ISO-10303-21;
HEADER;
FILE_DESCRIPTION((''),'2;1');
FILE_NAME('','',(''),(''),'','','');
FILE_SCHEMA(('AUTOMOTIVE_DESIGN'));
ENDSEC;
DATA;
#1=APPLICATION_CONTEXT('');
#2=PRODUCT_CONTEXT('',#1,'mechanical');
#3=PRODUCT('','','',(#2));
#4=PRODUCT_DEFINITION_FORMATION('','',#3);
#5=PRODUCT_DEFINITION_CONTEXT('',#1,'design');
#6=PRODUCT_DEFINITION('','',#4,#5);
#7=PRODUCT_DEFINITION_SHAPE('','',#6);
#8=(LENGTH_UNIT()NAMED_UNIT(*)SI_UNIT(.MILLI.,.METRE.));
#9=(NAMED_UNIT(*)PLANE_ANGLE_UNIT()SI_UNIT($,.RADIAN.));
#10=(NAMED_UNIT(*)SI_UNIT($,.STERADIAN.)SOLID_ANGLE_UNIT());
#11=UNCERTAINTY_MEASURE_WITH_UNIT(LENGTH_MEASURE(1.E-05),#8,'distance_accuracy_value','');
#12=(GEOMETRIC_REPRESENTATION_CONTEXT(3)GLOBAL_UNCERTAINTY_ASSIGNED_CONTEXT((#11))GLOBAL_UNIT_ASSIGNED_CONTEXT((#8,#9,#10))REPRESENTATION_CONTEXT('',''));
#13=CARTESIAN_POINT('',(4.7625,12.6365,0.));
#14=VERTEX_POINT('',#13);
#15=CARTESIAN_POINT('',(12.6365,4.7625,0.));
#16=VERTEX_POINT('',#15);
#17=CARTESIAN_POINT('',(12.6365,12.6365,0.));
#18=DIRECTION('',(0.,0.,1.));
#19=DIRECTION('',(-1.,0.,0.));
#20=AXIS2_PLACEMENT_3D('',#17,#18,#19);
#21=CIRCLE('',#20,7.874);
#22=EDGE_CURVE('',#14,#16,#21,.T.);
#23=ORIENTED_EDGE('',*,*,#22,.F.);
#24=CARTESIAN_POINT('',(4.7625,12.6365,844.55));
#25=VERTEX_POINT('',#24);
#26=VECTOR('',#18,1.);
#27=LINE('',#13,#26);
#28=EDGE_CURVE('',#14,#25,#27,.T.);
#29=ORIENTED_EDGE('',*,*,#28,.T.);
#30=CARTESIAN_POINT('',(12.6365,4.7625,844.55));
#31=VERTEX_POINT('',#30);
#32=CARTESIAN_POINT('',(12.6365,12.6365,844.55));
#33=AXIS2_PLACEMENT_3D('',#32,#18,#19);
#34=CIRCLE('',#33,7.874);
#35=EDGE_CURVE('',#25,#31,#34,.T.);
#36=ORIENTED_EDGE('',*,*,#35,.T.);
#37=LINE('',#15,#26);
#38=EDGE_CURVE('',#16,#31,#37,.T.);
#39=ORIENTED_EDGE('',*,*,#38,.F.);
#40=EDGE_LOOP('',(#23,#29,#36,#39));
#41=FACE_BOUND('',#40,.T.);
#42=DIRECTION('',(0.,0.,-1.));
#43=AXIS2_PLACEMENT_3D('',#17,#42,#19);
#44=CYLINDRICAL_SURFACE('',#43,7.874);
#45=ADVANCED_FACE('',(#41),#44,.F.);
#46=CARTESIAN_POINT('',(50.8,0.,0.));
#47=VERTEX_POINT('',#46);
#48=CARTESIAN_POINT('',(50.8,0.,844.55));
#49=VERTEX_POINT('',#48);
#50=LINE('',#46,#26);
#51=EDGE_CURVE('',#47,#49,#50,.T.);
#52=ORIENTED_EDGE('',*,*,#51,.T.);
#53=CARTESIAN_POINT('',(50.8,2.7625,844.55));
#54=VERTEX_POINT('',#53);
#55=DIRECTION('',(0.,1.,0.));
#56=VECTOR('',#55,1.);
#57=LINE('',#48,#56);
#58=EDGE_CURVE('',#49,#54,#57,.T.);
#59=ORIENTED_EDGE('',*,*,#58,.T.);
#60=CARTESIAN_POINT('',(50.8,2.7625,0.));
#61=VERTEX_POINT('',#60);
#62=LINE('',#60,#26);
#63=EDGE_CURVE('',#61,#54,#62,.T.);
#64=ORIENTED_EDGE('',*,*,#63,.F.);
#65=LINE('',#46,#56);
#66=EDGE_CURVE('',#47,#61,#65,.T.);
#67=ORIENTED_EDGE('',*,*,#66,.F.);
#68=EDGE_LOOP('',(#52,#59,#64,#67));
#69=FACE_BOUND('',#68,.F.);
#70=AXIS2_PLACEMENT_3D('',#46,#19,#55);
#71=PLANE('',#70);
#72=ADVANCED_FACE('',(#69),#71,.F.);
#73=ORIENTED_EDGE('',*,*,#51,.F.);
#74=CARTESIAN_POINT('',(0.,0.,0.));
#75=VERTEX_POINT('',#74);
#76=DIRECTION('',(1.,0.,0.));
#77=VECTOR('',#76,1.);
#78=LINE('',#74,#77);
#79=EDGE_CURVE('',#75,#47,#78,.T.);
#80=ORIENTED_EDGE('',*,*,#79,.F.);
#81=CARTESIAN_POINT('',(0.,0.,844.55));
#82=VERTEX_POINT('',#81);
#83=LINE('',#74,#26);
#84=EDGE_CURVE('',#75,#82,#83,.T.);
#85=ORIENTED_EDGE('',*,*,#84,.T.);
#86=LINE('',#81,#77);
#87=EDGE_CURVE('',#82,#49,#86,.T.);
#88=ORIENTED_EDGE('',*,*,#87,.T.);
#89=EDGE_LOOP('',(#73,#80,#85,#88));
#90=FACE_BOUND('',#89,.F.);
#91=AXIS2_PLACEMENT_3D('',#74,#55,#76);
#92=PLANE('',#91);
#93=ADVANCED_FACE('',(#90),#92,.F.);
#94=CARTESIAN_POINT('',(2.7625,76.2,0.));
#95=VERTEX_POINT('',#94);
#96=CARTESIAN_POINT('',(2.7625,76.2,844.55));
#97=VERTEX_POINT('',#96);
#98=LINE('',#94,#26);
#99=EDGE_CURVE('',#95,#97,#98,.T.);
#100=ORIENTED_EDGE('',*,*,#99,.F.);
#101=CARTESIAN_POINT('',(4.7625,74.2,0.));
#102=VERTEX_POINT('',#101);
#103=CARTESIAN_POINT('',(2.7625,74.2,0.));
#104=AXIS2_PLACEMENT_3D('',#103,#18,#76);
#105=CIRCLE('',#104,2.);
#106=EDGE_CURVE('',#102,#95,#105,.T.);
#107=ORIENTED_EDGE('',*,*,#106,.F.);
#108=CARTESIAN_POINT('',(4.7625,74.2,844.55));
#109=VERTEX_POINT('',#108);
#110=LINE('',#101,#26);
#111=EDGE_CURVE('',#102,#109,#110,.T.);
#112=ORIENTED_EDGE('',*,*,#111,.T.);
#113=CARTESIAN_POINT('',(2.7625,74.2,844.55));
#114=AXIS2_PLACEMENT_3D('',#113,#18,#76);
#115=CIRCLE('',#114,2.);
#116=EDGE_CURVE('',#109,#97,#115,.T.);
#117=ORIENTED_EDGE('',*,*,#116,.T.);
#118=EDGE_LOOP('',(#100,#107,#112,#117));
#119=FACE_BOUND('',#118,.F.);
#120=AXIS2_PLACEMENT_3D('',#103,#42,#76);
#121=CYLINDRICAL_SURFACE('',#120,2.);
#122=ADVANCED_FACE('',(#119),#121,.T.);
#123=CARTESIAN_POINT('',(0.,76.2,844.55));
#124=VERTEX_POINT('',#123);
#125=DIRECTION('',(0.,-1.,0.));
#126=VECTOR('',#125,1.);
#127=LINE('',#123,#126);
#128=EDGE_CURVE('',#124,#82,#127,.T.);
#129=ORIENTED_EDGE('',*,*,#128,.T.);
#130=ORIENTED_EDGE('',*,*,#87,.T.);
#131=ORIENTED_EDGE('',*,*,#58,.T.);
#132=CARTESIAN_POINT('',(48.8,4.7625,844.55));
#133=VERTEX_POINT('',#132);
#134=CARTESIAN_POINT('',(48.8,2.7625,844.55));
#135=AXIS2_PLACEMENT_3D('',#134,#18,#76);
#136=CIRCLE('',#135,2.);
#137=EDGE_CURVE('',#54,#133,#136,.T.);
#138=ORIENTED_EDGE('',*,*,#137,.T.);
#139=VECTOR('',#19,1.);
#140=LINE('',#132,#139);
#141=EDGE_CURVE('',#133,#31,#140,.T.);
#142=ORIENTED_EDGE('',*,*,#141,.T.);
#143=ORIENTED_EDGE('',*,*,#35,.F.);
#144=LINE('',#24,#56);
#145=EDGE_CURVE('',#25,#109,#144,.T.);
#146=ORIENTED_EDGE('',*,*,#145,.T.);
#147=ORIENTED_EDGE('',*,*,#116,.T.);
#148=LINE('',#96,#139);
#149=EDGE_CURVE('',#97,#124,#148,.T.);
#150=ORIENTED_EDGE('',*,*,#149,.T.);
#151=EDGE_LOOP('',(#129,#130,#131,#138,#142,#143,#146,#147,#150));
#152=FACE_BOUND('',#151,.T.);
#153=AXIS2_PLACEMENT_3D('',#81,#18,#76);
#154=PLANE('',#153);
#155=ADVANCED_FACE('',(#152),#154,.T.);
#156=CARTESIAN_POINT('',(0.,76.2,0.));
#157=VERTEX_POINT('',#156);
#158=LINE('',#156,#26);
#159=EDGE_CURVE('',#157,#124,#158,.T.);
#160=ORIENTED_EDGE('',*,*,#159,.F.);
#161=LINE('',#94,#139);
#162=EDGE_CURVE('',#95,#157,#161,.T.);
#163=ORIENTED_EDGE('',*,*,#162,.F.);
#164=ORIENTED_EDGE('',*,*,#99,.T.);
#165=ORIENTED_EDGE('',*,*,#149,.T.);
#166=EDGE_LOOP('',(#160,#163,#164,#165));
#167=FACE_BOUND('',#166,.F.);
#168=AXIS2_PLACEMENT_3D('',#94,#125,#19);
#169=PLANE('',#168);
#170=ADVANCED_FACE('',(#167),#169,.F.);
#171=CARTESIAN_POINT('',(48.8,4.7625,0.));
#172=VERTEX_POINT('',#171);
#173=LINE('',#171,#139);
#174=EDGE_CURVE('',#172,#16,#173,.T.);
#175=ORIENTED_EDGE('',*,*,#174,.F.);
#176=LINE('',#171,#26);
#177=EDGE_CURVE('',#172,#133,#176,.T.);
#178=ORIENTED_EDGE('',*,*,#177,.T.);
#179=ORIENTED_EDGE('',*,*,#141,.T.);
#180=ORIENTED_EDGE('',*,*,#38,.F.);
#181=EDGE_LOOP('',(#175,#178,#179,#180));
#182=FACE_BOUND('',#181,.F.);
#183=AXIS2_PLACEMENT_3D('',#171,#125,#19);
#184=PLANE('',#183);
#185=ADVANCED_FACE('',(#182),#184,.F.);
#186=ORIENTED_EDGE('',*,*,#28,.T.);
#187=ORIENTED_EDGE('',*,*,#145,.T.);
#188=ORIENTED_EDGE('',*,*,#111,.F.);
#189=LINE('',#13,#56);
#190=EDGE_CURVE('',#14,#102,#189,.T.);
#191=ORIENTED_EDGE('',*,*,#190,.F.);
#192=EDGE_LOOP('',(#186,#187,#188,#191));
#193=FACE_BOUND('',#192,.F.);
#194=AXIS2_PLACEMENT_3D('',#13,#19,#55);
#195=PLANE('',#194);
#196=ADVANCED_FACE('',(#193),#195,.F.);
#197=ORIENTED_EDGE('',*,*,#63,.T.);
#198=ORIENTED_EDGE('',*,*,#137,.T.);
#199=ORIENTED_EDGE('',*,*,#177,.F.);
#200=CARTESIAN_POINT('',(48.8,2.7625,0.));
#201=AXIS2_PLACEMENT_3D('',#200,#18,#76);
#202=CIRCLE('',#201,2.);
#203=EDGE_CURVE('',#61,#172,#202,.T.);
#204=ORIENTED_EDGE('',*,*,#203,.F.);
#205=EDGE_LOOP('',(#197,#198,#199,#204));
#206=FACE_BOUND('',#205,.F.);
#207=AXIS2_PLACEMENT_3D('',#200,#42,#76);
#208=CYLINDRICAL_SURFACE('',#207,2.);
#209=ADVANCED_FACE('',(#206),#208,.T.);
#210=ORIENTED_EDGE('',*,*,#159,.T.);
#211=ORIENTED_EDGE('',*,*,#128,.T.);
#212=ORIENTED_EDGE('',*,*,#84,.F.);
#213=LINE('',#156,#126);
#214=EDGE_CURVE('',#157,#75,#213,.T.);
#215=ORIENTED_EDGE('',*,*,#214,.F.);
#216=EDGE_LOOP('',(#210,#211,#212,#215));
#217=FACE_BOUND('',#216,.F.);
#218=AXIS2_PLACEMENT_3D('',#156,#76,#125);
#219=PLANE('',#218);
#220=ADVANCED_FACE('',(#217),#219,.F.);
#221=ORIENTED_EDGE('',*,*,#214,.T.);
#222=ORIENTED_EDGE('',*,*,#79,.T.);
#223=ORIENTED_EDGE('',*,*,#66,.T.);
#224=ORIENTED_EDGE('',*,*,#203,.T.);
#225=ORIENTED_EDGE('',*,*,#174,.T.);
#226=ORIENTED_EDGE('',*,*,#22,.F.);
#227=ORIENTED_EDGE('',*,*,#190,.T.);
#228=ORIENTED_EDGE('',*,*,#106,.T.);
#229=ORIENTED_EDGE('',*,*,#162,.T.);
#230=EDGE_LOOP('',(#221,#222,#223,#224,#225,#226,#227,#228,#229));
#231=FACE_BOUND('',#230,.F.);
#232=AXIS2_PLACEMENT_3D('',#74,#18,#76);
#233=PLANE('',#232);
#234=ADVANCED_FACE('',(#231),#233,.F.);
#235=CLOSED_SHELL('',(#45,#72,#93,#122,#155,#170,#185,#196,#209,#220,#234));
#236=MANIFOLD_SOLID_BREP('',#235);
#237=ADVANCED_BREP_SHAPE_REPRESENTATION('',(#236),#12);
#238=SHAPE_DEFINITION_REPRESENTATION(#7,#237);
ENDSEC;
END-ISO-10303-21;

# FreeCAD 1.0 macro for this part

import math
import FreeCAD as App
import Part
import Sketcher
from FreeCAD import Vector
Q = App.Units.Quantity

doc = App.newDocument("Part")
body = doc.addObject("PartDesign::Body", "Body")

# Sketch on XY plane
sketch1 = doc.addObject("Sketcher::SketchObject", "Sketch")
body.addObject(sketch1)
sketch1.AttachmentSupport = (doc.XY_Plane, [""])
sketch1.MapMode = "FlatFace"
sketch1.addGeometry(Part.LineSegment(Vector(2.8, 76.2, 0), Vector(0, 76.2, 0)), False)
sketch1.addGeometry(Part.LineSegment(Vector(0, 76.2, 0), Vector(0, 0, 0)), False)
sketch1.addGeometry(Part.LineSegment(Vector(0, 0, 0), Vector(50.8, 0, 0)), False)
sketch1.addGeometry(Part.LineSegment(Vector(50.8, 0, 0), Vector(50.8, 2.8, 0)), False)
sketch1.addGeometry(Part.ArcOfCircle(Part.Circle(Vector(48.8, 2.8, 0), Vector(0, 0, 1), 2), math.radians(0), math.radians(90)), False)
sketch1.addGeometry(Part.LineSegment(Vector(48.8, 4.8, 0), Vector(12.6, 4.8, 0)), False)
sketch1.addGeometry(Part.ArcOfCircle(Part.Circle(Vector(12.6, 12.6, 0), Vector(0, 0, 1), 7.9), math.radians(180), math.radians(270)), False)
sketch1.addGeometry(Part.LineSegment(Vector(4.8, 12.6, 0), Vector(4.8, 74.2, 0)), False)
sketch1.addGeometry(Part.ArcOfCircle(Part.Circle(Vector(2.8, 74.2, 0), Vector(0, 0, 1), 2), math.radians(0), math.radians(90)), False)
sketch1.addConstraint(Sketcher.Constraint("Coincident", 0, 2, 1, 1))
sketch1.addConstraint(Sketcher.Constraint("Coincident", 1, 2, 2, 1))
sketch1.addConstraint(Sketcher.Constraint("Coincident", 2, 2, 3, 1))
sketch1.addConstraint(Sketcher.Constraint("Tangent", 3, 2, 4, 1))
sketch1.addConstraint(Sketcher.Constraint("Tangent", 4, 2, 5, 1))
sketch1.addConstraint(Sketcher.Constraint("Tangent", 5, 2, 6, 2))
sketch1.addConstraint(Sketcher.Constraint("Tangent", 6, 1, 7, 1))
sketch1.addConstraint(Sketcher.Constraint("Tangent", 7, 2, 8, 1))
sketch1.addConstraint(Sketcher.Constraint("Tangent", 8, 2, 0, 1))
sketch1.addConstraint(Sketcher.Constraint("Horizontal", 0))
sketch1.addConstraint(Sketcher.Constraint("Vertical", 1))
sketch1.addConstraint(Sketcher.Constraint("Horizontal", 2))
sketch1.addConstraint(Sketcher.Constraint("Vertical", 3))
sketch1.addConstraint(Sketcher.Constraint("Horizontal", 5))
sketch1.addConstraint(Sketcher.Constraint("Vertical", 7))
sketch1.addConstraint(Sketcher.Constraint("Coincident", 1, 2, -1, 1))
sketch1.addConstraint(Sketcher.Constraint("Equal", 4, 8))
sketch1.addConstraint(Sketcher.Constraint("Equal", 0, 3))
sketch1.addConstraint(Sketcher.Constraint("DistanceX", 2, 1, 2, 2, Q("2 in")))
sketch1.addConstraint(Sketcher.Constraint("DistanceY", 1, 2, 1, 1, Q("3 in")))
sketch1.addConstraint(Sketcher.Constraint("Radius", 6, Q("0.31 in")))
sketch1.addConstraint(Sketcher.Constraint("Radius", 4, 2.0))
sketch1.addConstraint(Sketcher.Constraint("DistanceY", -1, 1, 4, 2, Q("0.1875 in")))
pad1 = doc.addObject("PartDesign::Pad", "Pad")
body.addObject(pad1)
pad1.Profile = sketch1
pad1.Length = Q("33.25 in")

doc.recompute()
